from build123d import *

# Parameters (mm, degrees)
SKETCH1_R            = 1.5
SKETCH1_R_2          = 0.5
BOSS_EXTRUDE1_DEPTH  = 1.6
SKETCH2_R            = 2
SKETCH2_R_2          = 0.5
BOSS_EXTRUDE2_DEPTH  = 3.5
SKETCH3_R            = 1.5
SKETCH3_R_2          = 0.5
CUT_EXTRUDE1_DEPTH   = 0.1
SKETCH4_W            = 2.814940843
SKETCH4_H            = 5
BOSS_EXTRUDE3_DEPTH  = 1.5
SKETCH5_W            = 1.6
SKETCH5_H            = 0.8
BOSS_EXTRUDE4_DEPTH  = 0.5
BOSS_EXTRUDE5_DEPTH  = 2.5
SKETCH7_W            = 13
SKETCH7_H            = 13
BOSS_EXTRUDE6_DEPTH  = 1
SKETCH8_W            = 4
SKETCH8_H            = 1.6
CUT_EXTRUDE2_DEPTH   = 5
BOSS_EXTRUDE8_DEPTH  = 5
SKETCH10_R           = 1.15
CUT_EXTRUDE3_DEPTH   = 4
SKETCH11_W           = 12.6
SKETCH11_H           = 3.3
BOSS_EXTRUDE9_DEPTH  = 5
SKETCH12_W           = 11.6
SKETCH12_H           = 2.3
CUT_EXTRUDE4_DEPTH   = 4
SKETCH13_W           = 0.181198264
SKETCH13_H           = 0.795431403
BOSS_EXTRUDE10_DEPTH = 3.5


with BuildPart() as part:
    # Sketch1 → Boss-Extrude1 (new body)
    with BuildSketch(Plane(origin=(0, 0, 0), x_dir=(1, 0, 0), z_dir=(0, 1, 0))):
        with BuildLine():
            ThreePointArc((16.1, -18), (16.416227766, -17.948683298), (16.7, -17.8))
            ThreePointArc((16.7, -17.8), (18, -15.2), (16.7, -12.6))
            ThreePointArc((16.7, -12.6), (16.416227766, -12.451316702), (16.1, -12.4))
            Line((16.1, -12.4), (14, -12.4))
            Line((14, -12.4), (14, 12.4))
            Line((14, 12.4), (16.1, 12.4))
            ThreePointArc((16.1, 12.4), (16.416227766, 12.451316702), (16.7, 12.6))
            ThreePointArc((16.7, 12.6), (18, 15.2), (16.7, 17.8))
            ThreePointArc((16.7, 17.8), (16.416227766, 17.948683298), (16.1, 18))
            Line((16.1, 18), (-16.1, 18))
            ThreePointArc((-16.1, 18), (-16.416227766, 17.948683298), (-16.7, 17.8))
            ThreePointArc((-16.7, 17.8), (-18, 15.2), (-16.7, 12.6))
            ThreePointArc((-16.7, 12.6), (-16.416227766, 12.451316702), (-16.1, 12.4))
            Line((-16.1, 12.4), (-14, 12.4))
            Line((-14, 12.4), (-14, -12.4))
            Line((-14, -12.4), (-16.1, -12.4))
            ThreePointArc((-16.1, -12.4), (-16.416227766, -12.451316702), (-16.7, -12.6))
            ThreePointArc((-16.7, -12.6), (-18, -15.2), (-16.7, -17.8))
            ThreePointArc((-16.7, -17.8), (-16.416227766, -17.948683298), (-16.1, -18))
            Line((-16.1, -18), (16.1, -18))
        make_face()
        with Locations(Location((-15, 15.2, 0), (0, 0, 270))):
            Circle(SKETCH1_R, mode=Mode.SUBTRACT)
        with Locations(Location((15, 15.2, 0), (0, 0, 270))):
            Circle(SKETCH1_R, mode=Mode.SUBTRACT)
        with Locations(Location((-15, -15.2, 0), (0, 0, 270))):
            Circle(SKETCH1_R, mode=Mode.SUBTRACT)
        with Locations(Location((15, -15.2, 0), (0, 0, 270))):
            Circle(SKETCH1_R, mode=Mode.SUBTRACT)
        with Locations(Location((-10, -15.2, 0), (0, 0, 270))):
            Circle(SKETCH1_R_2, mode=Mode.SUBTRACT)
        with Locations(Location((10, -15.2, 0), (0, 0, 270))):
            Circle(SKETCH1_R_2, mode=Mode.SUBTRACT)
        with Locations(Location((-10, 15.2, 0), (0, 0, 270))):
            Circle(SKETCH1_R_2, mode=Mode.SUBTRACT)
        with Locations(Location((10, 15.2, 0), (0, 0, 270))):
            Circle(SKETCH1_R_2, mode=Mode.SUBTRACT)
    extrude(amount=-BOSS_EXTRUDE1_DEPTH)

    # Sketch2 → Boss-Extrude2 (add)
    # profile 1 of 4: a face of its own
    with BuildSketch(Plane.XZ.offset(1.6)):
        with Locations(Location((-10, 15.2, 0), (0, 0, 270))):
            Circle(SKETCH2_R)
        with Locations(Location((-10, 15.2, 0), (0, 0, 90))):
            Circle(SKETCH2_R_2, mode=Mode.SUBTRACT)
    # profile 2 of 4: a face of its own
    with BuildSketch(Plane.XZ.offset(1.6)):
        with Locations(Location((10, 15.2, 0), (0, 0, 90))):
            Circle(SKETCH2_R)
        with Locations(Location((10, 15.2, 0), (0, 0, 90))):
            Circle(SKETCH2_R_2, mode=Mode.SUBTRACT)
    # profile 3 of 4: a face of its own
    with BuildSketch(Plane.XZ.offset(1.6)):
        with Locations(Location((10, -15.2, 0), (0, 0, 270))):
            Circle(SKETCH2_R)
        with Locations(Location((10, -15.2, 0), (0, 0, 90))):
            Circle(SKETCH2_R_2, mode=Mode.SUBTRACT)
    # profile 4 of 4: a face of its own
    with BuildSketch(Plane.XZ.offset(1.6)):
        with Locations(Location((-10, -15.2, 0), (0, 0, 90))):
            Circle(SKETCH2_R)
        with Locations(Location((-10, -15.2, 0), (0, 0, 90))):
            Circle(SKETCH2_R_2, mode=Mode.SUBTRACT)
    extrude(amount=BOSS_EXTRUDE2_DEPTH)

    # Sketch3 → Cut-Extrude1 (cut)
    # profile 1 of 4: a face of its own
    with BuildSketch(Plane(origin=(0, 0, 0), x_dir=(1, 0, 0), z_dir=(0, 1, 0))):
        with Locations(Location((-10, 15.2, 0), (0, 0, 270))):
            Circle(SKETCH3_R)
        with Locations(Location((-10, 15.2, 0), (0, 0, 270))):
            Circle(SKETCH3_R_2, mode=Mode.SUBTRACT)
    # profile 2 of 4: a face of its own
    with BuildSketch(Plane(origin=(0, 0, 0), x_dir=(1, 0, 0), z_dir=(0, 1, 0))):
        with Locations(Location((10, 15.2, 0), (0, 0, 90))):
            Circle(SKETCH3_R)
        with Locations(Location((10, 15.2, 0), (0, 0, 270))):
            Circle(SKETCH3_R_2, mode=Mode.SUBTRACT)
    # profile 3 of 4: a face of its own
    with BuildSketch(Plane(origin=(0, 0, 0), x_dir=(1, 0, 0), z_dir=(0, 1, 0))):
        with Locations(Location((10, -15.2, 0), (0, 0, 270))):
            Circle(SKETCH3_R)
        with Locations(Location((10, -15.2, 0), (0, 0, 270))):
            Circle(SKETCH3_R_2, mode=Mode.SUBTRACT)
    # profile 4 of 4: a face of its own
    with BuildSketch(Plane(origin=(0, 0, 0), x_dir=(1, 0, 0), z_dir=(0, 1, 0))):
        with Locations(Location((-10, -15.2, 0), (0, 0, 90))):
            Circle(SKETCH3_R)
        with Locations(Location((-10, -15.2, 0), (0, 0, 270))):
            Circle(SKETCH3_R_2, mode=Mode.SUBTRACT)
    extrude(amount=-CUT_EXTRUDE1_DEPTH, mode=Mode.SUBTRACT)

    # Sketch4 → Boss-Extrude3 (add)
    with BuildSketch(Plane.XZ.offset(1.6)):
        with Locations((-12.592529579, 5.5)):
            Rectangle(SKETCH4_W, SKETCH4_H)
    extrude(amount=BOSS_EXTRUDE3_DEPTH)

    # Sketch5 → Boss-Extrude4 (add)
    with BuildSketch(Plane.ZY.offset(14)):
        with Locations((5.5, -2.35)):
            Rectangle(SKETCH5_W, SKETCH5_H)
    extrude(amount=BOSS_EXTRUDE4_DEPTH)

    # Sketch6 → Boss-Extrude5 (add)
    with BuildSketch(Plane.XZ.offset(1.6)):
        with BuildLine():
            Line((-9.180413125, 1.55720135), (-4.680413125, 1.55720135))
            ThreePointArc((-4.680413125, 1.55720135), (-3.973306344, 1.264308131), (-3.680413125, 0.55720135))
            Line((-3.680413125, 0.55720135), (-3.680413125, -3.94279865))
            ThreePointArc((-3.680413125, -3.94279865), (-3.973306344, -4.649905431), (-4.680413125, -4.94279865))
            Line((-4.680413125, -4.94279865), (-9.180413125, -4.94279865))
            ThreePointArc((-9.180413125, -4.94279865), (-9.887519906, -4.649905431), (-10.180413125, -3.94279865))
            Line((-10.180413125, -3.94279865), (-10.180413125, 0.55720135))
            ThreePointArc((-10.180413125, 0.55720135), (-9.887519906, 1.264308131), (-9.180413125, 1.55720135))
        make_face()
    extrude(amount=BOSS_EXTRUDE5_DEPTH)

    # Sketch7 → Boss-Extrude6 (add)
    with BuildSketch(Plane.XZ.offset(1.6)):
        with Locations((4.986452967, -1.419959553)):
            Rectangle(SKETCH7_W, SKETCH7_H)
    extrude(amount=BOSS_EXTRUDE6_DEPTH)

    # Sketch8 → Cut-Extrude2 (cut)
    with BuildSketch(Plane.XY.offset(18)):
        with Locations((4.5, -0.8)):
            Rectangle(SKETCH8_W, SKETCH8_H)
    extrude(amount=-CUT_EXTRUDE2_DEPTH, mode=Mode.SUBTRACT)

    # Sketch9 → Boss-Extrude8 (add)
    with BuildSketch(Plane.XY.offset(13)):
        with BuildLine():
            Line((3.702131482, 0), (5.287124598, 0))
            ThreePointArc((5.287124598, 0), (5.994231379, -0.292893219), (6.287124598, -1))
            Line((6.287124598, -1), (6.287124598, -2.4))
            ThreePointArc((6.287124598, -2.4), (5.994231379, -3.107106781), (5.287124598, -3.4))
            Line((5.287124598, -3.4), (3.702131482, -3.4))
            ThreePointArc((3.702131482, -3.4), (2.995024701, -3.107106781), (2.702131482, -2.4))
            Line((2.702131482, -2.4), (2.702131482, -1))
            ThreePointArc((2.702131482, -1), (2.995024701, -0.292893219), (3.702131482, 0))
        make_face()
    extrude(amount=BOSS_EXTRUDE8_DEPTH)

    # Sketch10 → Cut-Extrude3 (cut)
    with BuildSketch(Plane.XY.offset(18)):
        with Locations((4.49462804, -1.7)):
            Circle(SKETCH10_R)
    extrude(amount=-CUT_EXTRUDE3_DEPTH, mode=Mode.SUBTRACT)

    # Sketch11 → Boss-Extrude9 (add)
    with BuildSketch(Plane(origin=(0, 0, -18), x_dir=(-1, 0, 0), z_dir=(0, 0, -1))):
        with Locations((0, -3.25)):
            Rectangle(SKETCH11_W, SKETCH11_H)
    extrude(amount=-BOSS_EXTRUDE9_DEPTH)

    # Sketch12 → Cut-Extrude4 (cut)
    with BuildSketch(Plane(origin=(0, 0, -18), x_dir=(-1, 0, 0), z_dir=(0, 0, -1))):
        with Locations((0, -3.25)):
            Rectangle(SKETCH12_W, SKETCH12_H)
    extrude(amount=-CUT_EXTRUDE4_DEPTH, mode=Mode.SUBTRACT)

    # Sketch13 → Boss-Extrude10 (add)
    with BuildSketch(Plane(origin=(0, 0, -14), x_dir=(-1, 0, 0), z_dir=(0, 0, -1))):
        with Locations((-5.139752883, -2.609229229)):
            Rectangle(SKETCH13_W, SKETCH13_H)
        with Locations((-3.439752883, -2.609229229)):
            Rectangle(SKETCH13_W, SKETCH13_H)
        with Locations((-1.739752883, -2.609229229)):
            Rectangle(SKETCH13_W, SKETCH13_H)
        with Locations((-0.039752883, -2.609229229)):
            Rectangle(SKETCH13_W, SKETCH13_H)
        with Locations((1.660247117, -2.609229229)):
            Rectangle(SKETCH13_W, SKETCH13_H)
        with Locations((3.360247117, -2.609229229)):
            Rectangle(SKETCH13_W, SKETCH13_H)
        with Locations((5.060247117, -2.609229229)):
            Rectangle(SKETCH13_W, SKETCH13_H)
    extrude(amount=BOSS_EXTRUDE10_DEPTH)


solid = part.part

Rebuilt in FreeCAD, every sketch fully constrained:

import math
import FreeCAD as App
import Part
import Sketcher

V = App.Vector
Q = App.Units.Quantity


def add_polygon(sketch, points):
    """Adds a closed chain of lines whose ends are joined by coincident constraints."""
    first, n = sketch.GeometryCount, len(points)
    for a, b in zip(points, points[1:] + points[:1]):
        sketch.addGeometry(Part.LineSegment(App.Vector(*a, 0), App.Vector(*b, 0)), False)
    for i in range(n):
        sketch.addConstraint(Sketcher.Constraint("Coincident", first + i, 2, first + (i + 1) % n, 1))

doc = App.newDocument("Part")
body = doc.addObject("PartDesign::Body", "Body")

sketch1 = body.newObject("Sketcher::SketchObject", "Sketch")
sketch1.AttachmentSupport = (doc.getObject("XZ_Plane"), [""])
sketch1.MapMode = "FlatFace"
sketch1.addGeometry([
    Part.ArcOfCircle(Part.Circle(V(16.1, 17, 0), V(0, 0, 1), 1), math.radians(53), math.radians(90)),
    Part.ArcOfCircle(Part.Circle(V(14.8, 15.2, 0), V(0, 0, 1), 3.2), math.radians(-53), math.radians(53)),
    Part.ArcOfCircle(Part.Circle(V(16.1, 13.4, 0), V(0, 0, 1), 1), math.radians(-90), math.radians(-53)),
    Part.LineSegment(V(16.1, 12.4, 0), V(14, 12.4, 0)),
    Part.LineSegment(V(14, 12.4, 0), V(14, -12.4, 0)),
    Part.LineSegment(V(14, -12.4, 0), V(16.1, -12.4, 0)),
    Part.ArcOfCircle(Part.Circle(V(16.1, -13.4, 0), V(0, 0, 1), 1), math.radians(53), math.radians(90)),
    Part.ArcOfCircle(Part.Circle(V(14.8, -15.2, 0), V(0, 0, 1), 3.2), math.radians(-53), math.radians(53)),
    Part.ArcOfCircle(Part.Circle(V(16.1, -17, 0), V(0, 0, 1), 1), math.radians(-90), math.radians(-53)),
    Part.LineSegment(V(16.1, -18, 0), V(-16.1, -18, 0)),
    Part.ArcOfCircle(Part.Circle(V(-16.1, -17, 0), V(0, 0, 1), 1), math.radians(-127), math.radians(-90)),
    Part.ArcOfCircle(Part.Circle(V(-14.8, -15.2, 0), V(0, 0, 1), 3.2), math.radians(127), math.radians(233)),
    Part.ArcOfCircle(Part.Circle(V(-16.1, -13.4, 0), V(0, 0, 1), 1), math.radians(90), math.radians(127)),
    Part.LineSegment(V(-16.1, -12.4, 0), V(-14, -12.4, 0)),
    Part.LineSegment(V(-14, -12.4, 0), V(-14, 12.4, 0)),
    Part.LineSegment(V(-14, 12.4, 0), V(-16.1, 12.4, 0)),
    Part.ArcOfCircle(Part.Circle(V(-16.1, 13.4, 0), V(0, 0, 1), 1), math.radians(-127), math.radians(-90)),
    Part.ArcOfCircle(Part.Circle(V(-14.8, 15.2, 0), V(0, 0, 1), 3.2), math.radians(127), math.radians(233)),
    Part.ArcOfCircle(Part.Circle(V(-16.1, 17, 0), V(0, 0, 1), 1), math.radians(90), math.radians(127)),
    Part.LineSegment(V(-16.1, 18, 0), V(16.1, 18, 0)),
    Part.Circle(V(-15, 15.2, 0), V(0, 0, 1), 1.5),
    Part.Circle(V(-10, 15.2, 0), V(0, 0, 1), 0.5),
    Part.Circle(V(10, 15.2, 0), V(0, 0, 1), 0.5),
    Part.Circle(V(15, 15.2, 0), V(0, 0, 1), 1.5),
    Part.Circle(V(-15, -15.2, 0), V(0, 0, 1), 1.5),
    Part.Circle(V(-10, -15.2, 0), V(0, 0, 1), 0.5),
    Part.Circle(V(10, -15.2, 0), V(0, 0, 1), 0.5),
    Part.Circle(V(15, -15.2, 0), V(0, 0, 1), 1.5),
], False)
sketch1.addConstraint([
    Sketcher.Constraint("Tangent", 0, 1, 1, 2),
    Sketcher.Constraint("Tangent", 1, 1, 2, 2),
    Sketcher.Constraint("Tangent", 2, 1, 3, 1),
    Sketcher.Constraint("Coincident", 3, 2, 4, 1),
    Sketcher.Constraint("Coincident", 4, 2, 5, 1),
    Sketcher.Constraint("Tangent", 5, 2, 6, 2),
    Sketcher.Constraint("Tangent", 6, 1, 7, 2),
    Sketcher.Constraint("Tangent", 7, 1, 8, 2),
    Sketcher.Constraint("Tangent", 8, 1, 9, 1),
    Sketcher.Constraint("Tangent", 9, 2, 10, 2),
    Sketcher.Constraint("Tangent", 10, 1, 11, 2),
    Sketcher.Constraint("Tangent", 11, 1, 12, 2),
    Sketcher.Constraint("Tangent", 12, 1, 13, 1),
    Sketcher.Constraint("Coincident", 13, 2, 14, 1),
    Sketcher.Constraint("Coincident", 14, 2, 15, 1),
    Sketcher.Constraint("Tangent", 15, 2, 16, 2),
    Sketcher.Constraint("Tangent", 16, 1, 17, 2),
    Sketcher.Constraint("Tangent", 17, 1, 18, 2),
    Sketcher.Constraint("Tangent", 18, 1, 19, 1),
    Sketcher.Constraint("Tangent", 19, 2, 0, 2),
    Sketcher.Constraint("Horizontal", 3),
    Sketcher.Constraint("Vertical", 4),
    Sketcher.Constraint("Horizontal", 5),
    Sketcher.Constraint("Horizontal", 9),
    Sketcher.Constraint("Horizontal", 13),
    Sketcher.Constraint("Vertical", 14),
    Sketcher.Constraint("Horizontal", 15),
    Sketcher.Constraint("Horizontal", 19),
    Sketcher.Constraint("Equal", 0, 2),
    Sketcher.Constraint("Equal", 2, 6),
    Sketcher.Constraint("Equal", 1, 7),
    Sketcher.Constraint("Equal", 6, 8),
    Sketcher.Constraint("Equal", 8, 10),
    Sketcher.Constraint("Equal", 7, 11),
    Sketcher.Constraint("Equal", 10, 12),
    Sketcher.Constraint("Equal", 12, 16),
    Sketcher.Constraint("Equal", 11, 17),
    Sketcher.Constraint("Equal", 16, 18),
    Sketcher.Constraint("Equal", 21, 22),
    Sketcher.Constraint("Equal", 20, 23),
    Sketcher.Constraint("Equal", 23, 24),
    Sketcher.Constraint("Equal", 22, 25),
    Sketcher.Constraint("Equal", 25, 26),
    Sketcher.Constraint("Equal", 24, 27),
    Sketcher.Constraint("Symmetric", 0, 3, 10, 3, -1, 1),
    Sketcher.Constraint("Symmetric", 2, 3, 12, 3, -1, 1),
    Sketcher.Constraint("Symmetric", 6, 3, 16, 3, -1, 1),
    Sketcher.Constraint("Symmetric", 23, 3, 24, 3, -1, 1),
    Sketcher.Constraint("Symmetric", 22, 3, 25, 3, -1, 1),
    Sketcher.Constraint("Symmetric", 21, 3, 26, 3, -1, 1),
    Sketcher.Constraint("Symmetric", 20, 3, 27, 3, -1, 1),
    Sketcher.Constraint("Symmetric", 7, 3, 11, 3, -2),
    Sketcher.Constraint("Symmetric", 21, 3, 22, 3, -2),
    Sketcher.Constraint("Symmetric", 20, 3, 23, 3, -2),
    Sketcher.Constraint("Symmetric", 4, 2, 13, 2, -2),
    Sketcher.Constraint("Horizontal", 1, 3, 17, 3),
    Sketcher.Constraint("Horizontal", 17, 3, 20, 3),
    Sketcher.Constraint("Horizontal", 20, 3, 21, 3),
    Sketcher.Constraint("Vertical", 0, 3, 2, 3),
    Sketcher.Constraint("Diameter", 20, Q("3 mm")),
    Sketcher.Constraint("Diameter", 21, Q("1 mm")),
    Sketcher.Constraint("Radius", 0, Q("1 mm")),
    Sketcher.Constraint("Radius", 1, Q("3.25 mm")),
    Sketcher.Constraint("DistanceX", 3, 2, 3, 1, Q("2.1 mm")),
    Sketcher.Constraint("DistanceX", 9, 2, 9, 1, Q("32.2 mm")),
    Sketcher.Constraint("DistanceY", 4, 2, 4, 1, Q("24.8 mm")),
    Sketcher.Constraint("DistanceY", -1, 1, 0, 3, Q("17 mm")),
    Sketcher.Constraint("DistanceX", 20, 3, -1, 1, Q("15 mm")),
    Sketcher.Constraint("DistanceX", 21, 3, -1, 1, Q("10 mm")),
])
pad1 = body.newObject("PartDesign::Pad", "Pad")
pad1.Profile = sketch1
pad1.Length = 1.6

sketch2 = body.newObject("Sketcher::SketchObject", "Sketch001")
sketch2.AttachmentSupport = (doc.getObject("XZ_Plane"), [""])
sketch2.MapMode = "FlatFace"
sketch2.AttachmentOffset = App.Placement(V(0, 0, 1.6), App.Rotation())
sketch2.addGeometry([
    Part.Circle(V(-10, 15.2, 0), V(0, 0, 1), 2),
    Part.Circle(V(-10, 15.2, 0), V(0, 0, 1), 0.5),
    Part.Circle(V(10, 15.2, 0), V(0, 0, 1), 2),
    Part.Circle(V(10, 15.2, 0), V(0, 0, 1), 0.5),
    Part.Circle(V(10, -15.2, 0), V(0, 0, 1), 2),
    Part.Circle(V(10, -15.2, 0), V(0, 0, 1), 0.5),
    Part.Circle(V(-10, -15.2, 0), V(0, 0, 1), 2),
    Part.Circle(V(-10, -15.2, 0), V(0, 0, 1), 0.5),
], False)
sketch2.addConstraint([
    Sketcher.Constraint("Coincident", 1, 3, 0, 3),
    Sketcher.Constraint("Coincident", 3, 3, 2, 3),
    Sketcher.Constraint("Coincident", 5, 3, 4, 3),
    Sketcher.Constraint("Coincident", 7, 3, 6, 3),
    Sketcher.Constraint("Equal", 0, 2),
    Sketcher.Constraint("Equal", 1, 3),
    Sketcher.Constraint("Equal", 2, 4),
    Sketcher.Constraint("Equal", 3, 5),
    Sketcher.Constraint("Equal", 4, 6),
    Sketcher.Constraint("Equal", 5, 7),
    Sketcher.Constraint("Symmetric", 0, 3, 4, 3, -1, 1),
    Sketcher.Constraint("Symmetric", 2, 3, 6, 3, -1, 1),
    Sketcher.Constraint("Symmetric", 0, 3, 2, 3, -2),
    Sketcher.Constraint("Diameter", 0, Q("4 mm")),
    Sketcher.Constraint("Diameter", 1, Q("1 mm")),
    Sketcher.Constraint("DistanceX", 0, 3, -1, 1, Q("10 mm")),
    Sketcher.Constraint("DistanceY", -1, 1, 0, 3, Q("15.2 mm")),
])
pad2 = body.newObject("PartDesign::Pad", "Pad001")
pad2.Profile = sketch2
pad2.Length = 3.5

sketch3 = body.newObject("Sketcher::SketchObject", "Sketch002")
sketch3.AttachmentSupport = (doc.getObject("XZ_Plane"), [""])
sketch3.MapMode = "FlatFace"
sketch3.addGeometry([
    Part.Circle(V(-10, -15.2, 0), V(0, 0, 1), 1.5),
    Part.Circle(V(-10, -15.2, 0), V(0, 0, 1), 0.5),
    Part.Circle(V(10, -15.2, 0), V(0, 0, 1), 1.5),
    Part.Circle(V(10, -15.2, 0), V(0, 0, 1), 0.5),
    Part.Circle(V(10, 15.2, 0), V(0, 0, 1), 1.5),
    Part.Circle(V(10, 15.2, 0), V(0, 0, 1), 0.5),
    Part.Circle(V(-10, 15.2, 0), V(0, 0, 1), 1.5),
    Part.Circle(V(-10, 15.2, 0), V(0, 0, 1), 0.5),
], False)
sketch3.addConstraint([
    Sketcher.Constraint("Coincident", 1, 3, 0, 3),
    Sketcher.Constraint("Coincident", 3, 3, 2, 3),
    Sketcher.Constraint("Coincident", 5, 3, 4, 3),
    Sketcher.Constraint("Coincident", 7, 3, 6, 3),
    Sketcher.Constraint("Equal", 0, 2),
    Sketcher.Constraint("Equal", 1, 3),
    Sketcher.Constraint("Equal", 2, 4),
    Sketcher.Constraint("Equal", 3, 5),
    Sketcher.Constraint("Equal", 4, 6),
    Sketcher.Constraint("Equal", 5, 7),
    Sketcher.Constraint("Symmetric", 0, 3, 4, 3, -1, 1),
    Sketcher.Constraint("Symmetric", 2, 3, 6, 3, -1, 1),
    Sketcher.Constraint("Symmetric", 0, 3, 2, 3, -2),
    Sketcher.Constraint("Diameter", 0, Q("3 mm")),
    Sketcher.Constraint("Diameter", 1, Q("1 mm")),
    Sketcher.Constraint("DistanceX", 0, 3, -1, 1, Q("10 mm")),
    Sketcher.Constraint("DistanceY", 0, 3, -1, 1, Q("15.2 mm")),
])
pocket1 = body.newObject("PartDesign::Pocket", "Pocket")
pocket1.Profile = sketch3
pocket1.Length = 0.1
pocket1.Reversed = True

sketch4 = body.newObject("Sketcher::SketchObject", "Sketch003")
sketch4.AttachmentSupport = (doc.getObject("XZ_Plane"), [""])
sketch4.MapMode = "FlatFace"
sketch4.AttachmentOffset = App.Placement(V(0, 0, 1.6), App.Rotation())
add_polygon(sketch4, [(-14, 8), (-14, 3), (-11.2, 3), (-11.2, 8)])
sketch4.addConstraint([
    Sketcher.Constraint("Vertical", 0),
    Sketcher.Constraint("Horizontal", 1),
    Sketcher.Constraint("Vertical", 2),
    Sketcher.Constraint("Horizontal", 3),
    Sketcher.Constraint("DistanceY", 0, 2, 0, 1, Q("5 mm")),
    Sketcher.Constraint("DistanceX", 0, 2, -1, 1, Q("14 mm")),
    Sketcher.Constraint("DistanceY", -1, 1, 0, 2, Q("3 mm")),
    Sketcher.Constraint("DistanceX", 1, 1, 1, 2, Q("2.814941 mm")),
])
pad3 = body.newObject("PartDesign::Pad", "Pad002")
pad3.Profile = sketch4
pad3.Length = 1.5

sketch5 = body.newObject("Sketcher::SketchObject", "Sketch004")
sketch5.AttachmentSupport = (doc.getObject("YZ_Plane"), [""])
sketch5.MapMode = "FlatFace"
sketch5.AttachmentOffset = App.Placement(V(0, 0, -14), App.Rotation())
add_polygon(sketch5, [(-1.9, 4.7), (-2.8, 4.7), (-2.8, 6.3), (-1.9, 6.3)])
sketch5.addConstraint([
    Sketcher.Constraint("Horizontal", 0),
    Sketcher.Constraint("Vertical", 1),
    Sketcher.Constraint("Horizontal", 2),
    Sketcher.Constraint("Vertical", 3),
    Sketcher.Constraint("DistanceX", 0, 2, 0, 1, Q("0.8 mm")),
    Sketcher.Constraint("DistanceY", 1, 1, 1, 2, Q("1.6 mm")),
    Sketcher.Constraint("DistanceY", -1, 1, 0, 2, Q("4.7 mm")),
    Sketcher.Constraint("DistanceX", 0, 2, -1, 1, Q("2.75 mm")),
])
pad4 = body.newObject("PartDesign::Pad", "Pad003")
pad4.Profile = sketch5
pad4.Length = 0.5
pad4.Reversed = True

sketch6 = body.newObject("Sketcher::SketchObject", "Sketch005")
sketch6.AttachmentSupport = (doc.getObject("XZ_Plane"), [""])
sketch6.MapMode = "FlatFace"
sketch6.AttachmentOffset = App.Placement(V(0, 0, 1.6), App.Rotation())
sketch6.addGeometry([
    Part.LineSegment(V(-4.7, 1.6, 0), V(-9.2, 1.6, 0)),
    Part.ArcOfCircle(Part.Circle(V(-9.2, 0.6, 0), V(0, 0, 1), 1), math.radians(90), math.radians(180)),
    Part.LineSegment(V(-10.2, 0.6, 0), V(-10.2, -3.9, 0)),
    Part.ArcOfCircle(Part.Circle(V(-9.2, -3.9, 0), V(0, 0, 1), 1), math.radians(-180), math.radians(-90)),
    Part.LineSegment(V(-9.2, -4.9, 0), V(-4.7, -4.9, 0)),
    Part.ArcOfCircle(Part.Circle(V(-4.7, -3.9, 0), V(0, 0, 1), 1), math.radians(-90), math.radians(0)),
    Part.LineSegment(V(-3.7, -3.9, 0), V(-3.7, 0.6, 0)),
    Part.ArcOfCircle(Part.Circle(V(-4.7, 0.6, 0), V(0, 0, 1), 1), math.radians(0), math.radians(90)),
], False)
sketch6.addConstraint([
    Sketcher.Constraint("Tangent", 0, 2, 1, 1),
    Sketcher.Constraint("Tangent", 1, 2, 2, 1),
    Sketcher.Constraint("Tangent", 2, 2, 3, 1),
    Sketcher.Constraint("Tangent", 3, 2, 4, 1),
    Sketcher.Constraint("Tangent", 4, 2, 5, 1),
    Sketcher.Constraint("Tangent", 5, 2, 6, 1),
    Sketcher.Constraint("Tangent", 6, 2, 7, 1),
    Sketcher.Constraint("Tangent", 7, 2, 0, 1),
    Sketcher.Constraint("Horizontal", 0),
    Sketcher.Constraint("Vertical", 2),
    Sketcher.Constraint("Horizontal", 4),
    Sketcher.Constraint("Vertical", 6),
    Sketcher.Constraint("Equal", 1, 3),
    Sketcher.Constraint("Equal", 3, 5),
    Sketcher.Constraint("Equal", 5, 7),
    Sketcher.Constraint("Equal", 4, 2),
    Sketcher.Constraint("Radius", 1, Q("1 mm")),
    Sketcher.Constraint("DistanceX", 0, 2, 0, 1, Q("4.5 mm")),
    Sketcher.Constraint("DistanceY", -1, 1, 1, 3, Q("0.557201 mm")),
    Sketcher.Constraint("DistanceX", 1, 3, -1, 1, Q("9.180413 mm")),
])
pad5 = body.newObject("PartDesign::Pad", "Pad004")
pad5.Profile = sketch6
pad5.Length = 2.5

sketch7 = body.newObject("Sketcher::SketchObject", "Sketch006")
sketch7.AttachmentSupport = (doc.getObject("XZ_Plane"), [""])
sketch7.MapMode = "FlatFace"
sketch7.AttachmentOffset = App.Placement(V(0, 0, 1.6), App.Rotation())
add_polygon(sketch7, [(-2, 5), (-2, -8), (11, -8), (11, 5)])
sketch7.addConstraint([
    Sketcher.Constraint("Vertical", 0),
    Sketcher.Constraint("Horizontal", 1),
    Sketcher.Constraint("Vertical", 2),
    Sketcher.Constraint("Horizontal", 3),
    Sketcher.Constraint("Equal", 3, 0),
    Sketcher.Constraint("DistanceX", 1, 1, 1, 2, Q("13 mm")),
    Sketcher.Constraint("DistanceY", 0, 2, -1, 1, Q("7.91996 mm")),
    Sketcher.Constraint("DistanceX", 0, 2, -1, 1, Q("1.513547 mm")),
])
pad6 = body.newObject("PartDesign::Pad", "Pad005")
pad6.Profile = sketch7
pad6.Length = 1

sketch8 = body.newObject("Sketcher::SketchObject", "Sketch007")
sketch8.AttachmentSupport = (doc.getObject("XY_Plane"), [""])
sketch8.MapMode = "FlatFace"
sketch8.AttachmentOffset = App.Placement(V(0, 0, 18), App.Rotation())
add_polygon(sketch8, [(2.5, 0), (2.5, -1.6), (6.5, -1.6), (6.5, 0)])
sketch8.addConstraint([
    Sketcher.Constraint("Vertical", 0),
    Sketcher.Constraint("Horizontal", 1),
    Sketcher.Constraint("Vertical", 2),
    Sketcher.Constraint("Horizontal", 3),
    Sketcher.Constraint("PointOnObject", 2, 2, -1),
    Sketcher.Constraint("DistanceX", 1, 1, 1, 2, Q("4 mm")),
    Sketcher.Constraint("DistanceY", 0, 2, 0, 1, Q("1.6 mm")),
    Sketcher.Constraint("DistanceX", -1, 1, 0, 2, Q("2.5 mm")),
])
pocket2 = body.newObject("PartDesign::Pocket", "Pocket001")
pocket2.Profile = sketch8
pocket2.Length = 5

sketch9 = body.newObject("Sketcher::SketchObject", "Sketch008")
sketch9.AttachmentSupport = (doc.getObject("XY_Plane"), [""])
sketch9.MapMode = "FlatFace"
sketch9.AttachmentOffset = App.Placement(V(0, 0, 13), App.Rotation())
sketch9.addGeometry([
    Part.LineSegment(V(5.3, 0, 0), V(3.7, 0, 0)),
    Part.ArcOfCircle(Part.Circle(V(3.7, -1, 0), V(0, 0, 1), 1), math.radians(90), math.radians(180)),
    Part.LineSegment(V(2.7, -1, 0), V(2.7, -2.4, 0)),
    Part.ArcOfCircle(Part.Circle(V(3.7, -2.4, 0), V(0, 0, 1), 1), math.radians(-180), math.radians(-90)),
    Part.LineSegment(V(3.7, -3.4, 0), V(5.3, -3.4, 0)),
    Part.ArcOfCircle(Part.Circle(V(5.3, -2.4, 0), V(0, 0, 1), 1), math.radians(-90), math.radians(0)),
    Part.LineSegment(V(6.3, -2.4, 0), V(6.3, -1, 0)),
    Part.ArcOfCircle(Part.Circle(V(5.3, -1, 0), V(0, 0, 1), 1), math.radians(0), math.radians(90)),
], False)
sketch9.addConstraint([
    Sketcher.Constraint("Tangent", 0, 2, 1, 1),
    Sketcher.Constraint("Tangent", 1, 2, 2, 1),
    Sketcher.Constraint("Tangent", 2, 2, 3, 1),
    Sketcher.Constraint("Tangent", 3, 2, 4, 1),
    Sketcher.Constraint("Tangent", 4, 2, 5, 1),
    Sketcher.Constraint("Tangent", 5, 2, 6, 1),
    Sketcher.Constraint("Tangent", 6, 2, 7, 1),
    Sketcher.Constraint("Tangent", 7, 2, 0, 1),
    Sketcher.Constraint("Horizontal", 0),
    Sketcher.Constraint("Vertical", 2),
    Sketcher.Constraint("Horizontal", 4),
    Sketcher.Constraint("Vertical", 6),
    Sketcher.Constraint("Equal", 1, 3),
    Sketcher.Constraint("Equal", 3, 5),
    Sketcher.Constraint("Equal", 5, 7),
    Sketcher.Constraint("PointOnObject", 0, 2, -1),
    Sketcher.Constraint("Radius", 1, Q("1 mm")),
    Sketcher.Constraint("DistanceY", 2, 2, 2, 1, Q("1.4 mm")),
    Sketcher.Constraint("DistanceX", 0, 2, 0, 1, Q("1.584993 mm")),
    Sketcher.Constraint("DistanceX", -1, 1, 1, 3, Q("3.702131 mm")),
])
pad7 = body.newObject("PartDesign::Pad", "Pad006")
pad7.Profile = sketch9
pad7.Length = 5

sketch10 = body.newObject("Sketcher::SketchObject", "Sketch009")
sketch10.AttachmentSupport = (doc.getObject("XY_Plane"), [""])
sketch10.MapMode = "FlatFace"
sketch10.AttachmentOffset = App.Placement(V(0, 0, 18), App.Rotation())
sketch10.addGeometry(Part.Circle(V(4.5, -1.7, 0), V(0, 0, 1), 1.1), False)
sketch10.addConstraint([
    Sketcher.Constraint("Diameter", 0, Q("2.3 mm")),
    Sketcher.Constraint("DistanceY", 0, 3, -1, 1, Q("1.7 mm")),
    Sketcher.Constraint("DistanceX", -1, 1, 0, 3, Q("4.494628 mm")),
])
pocket3 = body.newObject("PartDesign::Pocket", "Pocket002")
pocket3.Profile = sketch10
pocket3.Length = 4

sketch11 = body.newObject("Sketcher::SketchObject", "Sketch010")
sketch11.AttachmentSupport = (doc.getObject("XY_Plane"), [""])
sketch11.MapMode = "FlatFace"
sketch11.AttachmentOffset = App.Placement(V(0, 0, -18), App.Rotation())
add_polygon(sketch11, [(6.3, -1.6), (6.3, -4.9), (-6.3, -4.9), (-6.3, -1.6)])
sketch11.addConstraint([
    Sketcher.Constraint("Vertical", 0),
    Sketcher.Constraint("Horizontal", 1),
    Sketcher.Constraint("Vertical", 2),
    Sketcher.Constraint("Horizontal", 3),
    Sketcher.Constraint("DistanceX", 1, 2, 1, 1, Q("12.6 mm")),
    Sketcher.Constraint("DistanceY", 0, 2, 0, 1, Q("3.3 mm")),
    Sketcher.Constraint("DistanceX", -1, 1, 0, 2, Q("6.3 mm")),
    Sketcher.Constraint("DistanceY", 0, 2, -1, 1, Q("4.9 mm")),
])
pad8 = body.newObject("PartDesign::Pad", "Pad007")
pad8.Profile = sketch11
pad8.Length = 5

sketch12 = body.newObject("Sketcher::SketchObject", "Sketch011")
sketch12.AttachmentSupport = (doc.getObject("XY_Plane"), [""])
sketch12.MapMode = "FlatFace"
sketch12.AttachmentOffset = App.Placement(V(0, 0, -18), App.Rotation())
add_polygon(sketch12, [(5.8, -2.1), (5.8, -4.4), (-5.8, -4.4), (-5.8, -2.1)])
sketch12.addConstraint([
    Sketcher.Constraint("Vertical", 0),
    Sketcher.Constraint("Horizontal", 1),
    Sketcher.Constraint("Vertical", 2),
    Sketcher.Constraint("Horizontal", 3),
    Sketcher.Constraint("DistanceX", 1, 2, 1, 1, Q("11.6 mm")),
    Sketcher.Constraint("DistanceY", 0, 2, 0, 1, Q("2.3 mm")),
    Sketcher.Constraint("DistanceX", -1, 1, 0, 2, Q("5.8 mm")),
    Sketcher.Constraint("DistanceY", 0, 2, -1, 1, Q("4.4 mm")),
])
pocket4 = body.newObject("PartDesign::Pocket", "Pocket003")
pocket4.Profile = sketch12
pocket4.Length = 4
pocket4.Reversed = True

sketch13 = body.newObject("Sketcher::SketchObject", "Sketch012")
sketch13.AttachmentSupport = (doc.getObject("XY_Plane"), [""])
sketch13.MapMode = "FlatFace"
sketch13.AttachmentOffset = App.Placement(V(0, 0, -14), App.Rotation())
add_polygon(sketch13, [(5.23, -2.21), (5.23, -3.01), (5.05, -3.01), (5.05, -2.21)])
add_polygon(sketch13, [(3.53, -2.21), (3.53, -3.01), (3.35, -3.01), (3.35, -2.21)])
add_polygon(sketch13, [(1.83, -2.21), (1.83, -3.01), (1.65, -3.01), (1.65, -2.21)])
add_polygon(sketch13, [(0.13, -2.21), (0.13, -3.01), (-0.05, -3.01), (-0.05, -2.21)])
add_polygon(sketch13, [(-1.57, -2.21), (-1.57, -3.01), (-1.75, -3.01), (-1.75, -2.21)])
add_polygon(sketch13, [(-3.27, -2.21), (-3.27, -3.01), (-3.45, -3.01), (-3.45, -2.21)])
add_polygon(sketch13, [(-4.97, -2.21), (-4.97, -3.01), (-5.15, -3.01), (-5.15, -2.21)])
sketch13.addConstraint([
    Sketcher.Constraint("Vertical", 0),
    Sketcher.Constraint("Horizontal", 1),
    Sketcher.Constraint("Vertical", 2),
    Sketcher.Constraint("Horizontal", 3),
    Sketcher.Constraint("Vertical", 4),
    Sketcher.Constraint("Horizontal", 5),
    Sketcher.Constraint("Vertical", 6),
    Sketcher.Constraint("Horizontal", 7),
    Sketcher.Constraint("Vertical", 8),
    Sketcher.Constraint("Horizontal", 9),
    Sketcher.Constraint("Vertical", 10),
    Sketcher.Constraint("Horizontal", 11),
    Sketcher.Constraint("Vertical", 12),
    Sketcher.Constraint("Horizontal", 13),
    Sketcher.Constraint("Vertical", 14),
    Sketcher.Constraint("Horizontal", 15),
    Sketcher.Constraint("Vertical", 16),
    Sketcher.Constraint("Horizontal", 17),
    Sketcher.Constraint("Vertical", 18),
    Sketcher.Constraint("Horizontal", 19),
    Sketcher.Constraint("Vertical", 20),
    Sketcher.Constraint("Horizontal", 21),
    Sketcher.Constraint("Vertical", 22),
    Sketcher.Constraint("Horizontal", 23),
    Sketcher.Constraint("Vertical", 24),
    Sketcher.Constraint("Horizontal", 25),
    Sketcher.Constraint("Vertical", 26),
    Sketcher.Constraint("Horizontal", 27),
    Sketcher.Constraint("Horizontal", 1, 2, 4, 2),
    Sketcher.Constraint("Horizontal", 3, 2, 6, 2),
    Sketcher.Constraint("Horizontal", 5, 2, 8, 2),
    Sketcher.Constraint("Horizontal", 7, 2, 10, 2),
    Sketcher.Constraint("Horizontal", 9, 2, 12, 2),
    Sketcher.Constraint("Horizontal", 11, 2, 14, 2),
    Sketcher.Constraint("Horizontal", 13, 2, 16, 2),
    Sketcher.Constraint("Horizontal", 15, 2, 18, 2),
    Sketcher.Constraint("Horizontal", 17, 2, 20, 2),
    Sketcher.Constraint("Horizontal", 19, 2, 22, 2),
    Sketcher.Constraint("Horizontal", 21, 2, 24, 2),
    Sketcher.Constraint("Horizontal", 23, 2, 26, 2),
    Sketcher.Constraint("Equal", 3, 5),
    Sketcher.Constraint("Equal", 7, 9),
    Sketcher.Constraint("Equal", 11, 13),
    Sketcher.Constraint("Equal", 15, 17),
    Sketcher.Constraint("Equal", 19, 21),
    Sketcher.Constraint("Equal", 23, 25),
    Sketcher.Constraint("DistanceX", 4, 2, 0, 2, Q("1.7 mm")),
    Sketcher.Constraint("DistanceX", 8, 2, 4, 2, Q("1.7 mm")),
    Sketcher.Constraint("DistanceX", 12, 2, 8, 2, Q("1.7 mm")),
    Sketcher.Constraint("DistanceX", 16, 2, 12, 2, Q("1.7 mm")),
    Sketcher.Constraint("DistanceX", 20, 2, 16, 2, Q("1.7 mm")),
    Sketcher.Constraint("DistanceX", 24, 2, 20, 2, Q("1.7 mm")),
    Sketcher.Constraint("DistanceX", 1, 2, 1, 1, Q("0.181198 mm")),
    Sketcher.Constraint("DistanceY", 0, 2, 0, 1, Q("0.795431 mm")),
    Sketcher.Constraint("DistanceX", -1, 1, 0, 2, Q("5.230352 mm")),
    Sketcher.Constraint("DistanceY", 0, 2, -1, 1, Q("3.006945 mm")),
])
pad9 = body.newObject("PartDesign::Pad", "Pad008")
pad9.Profile = sketch13
pad9.Length = 3.5
pad9.Reversed = True

doc.recompute()
